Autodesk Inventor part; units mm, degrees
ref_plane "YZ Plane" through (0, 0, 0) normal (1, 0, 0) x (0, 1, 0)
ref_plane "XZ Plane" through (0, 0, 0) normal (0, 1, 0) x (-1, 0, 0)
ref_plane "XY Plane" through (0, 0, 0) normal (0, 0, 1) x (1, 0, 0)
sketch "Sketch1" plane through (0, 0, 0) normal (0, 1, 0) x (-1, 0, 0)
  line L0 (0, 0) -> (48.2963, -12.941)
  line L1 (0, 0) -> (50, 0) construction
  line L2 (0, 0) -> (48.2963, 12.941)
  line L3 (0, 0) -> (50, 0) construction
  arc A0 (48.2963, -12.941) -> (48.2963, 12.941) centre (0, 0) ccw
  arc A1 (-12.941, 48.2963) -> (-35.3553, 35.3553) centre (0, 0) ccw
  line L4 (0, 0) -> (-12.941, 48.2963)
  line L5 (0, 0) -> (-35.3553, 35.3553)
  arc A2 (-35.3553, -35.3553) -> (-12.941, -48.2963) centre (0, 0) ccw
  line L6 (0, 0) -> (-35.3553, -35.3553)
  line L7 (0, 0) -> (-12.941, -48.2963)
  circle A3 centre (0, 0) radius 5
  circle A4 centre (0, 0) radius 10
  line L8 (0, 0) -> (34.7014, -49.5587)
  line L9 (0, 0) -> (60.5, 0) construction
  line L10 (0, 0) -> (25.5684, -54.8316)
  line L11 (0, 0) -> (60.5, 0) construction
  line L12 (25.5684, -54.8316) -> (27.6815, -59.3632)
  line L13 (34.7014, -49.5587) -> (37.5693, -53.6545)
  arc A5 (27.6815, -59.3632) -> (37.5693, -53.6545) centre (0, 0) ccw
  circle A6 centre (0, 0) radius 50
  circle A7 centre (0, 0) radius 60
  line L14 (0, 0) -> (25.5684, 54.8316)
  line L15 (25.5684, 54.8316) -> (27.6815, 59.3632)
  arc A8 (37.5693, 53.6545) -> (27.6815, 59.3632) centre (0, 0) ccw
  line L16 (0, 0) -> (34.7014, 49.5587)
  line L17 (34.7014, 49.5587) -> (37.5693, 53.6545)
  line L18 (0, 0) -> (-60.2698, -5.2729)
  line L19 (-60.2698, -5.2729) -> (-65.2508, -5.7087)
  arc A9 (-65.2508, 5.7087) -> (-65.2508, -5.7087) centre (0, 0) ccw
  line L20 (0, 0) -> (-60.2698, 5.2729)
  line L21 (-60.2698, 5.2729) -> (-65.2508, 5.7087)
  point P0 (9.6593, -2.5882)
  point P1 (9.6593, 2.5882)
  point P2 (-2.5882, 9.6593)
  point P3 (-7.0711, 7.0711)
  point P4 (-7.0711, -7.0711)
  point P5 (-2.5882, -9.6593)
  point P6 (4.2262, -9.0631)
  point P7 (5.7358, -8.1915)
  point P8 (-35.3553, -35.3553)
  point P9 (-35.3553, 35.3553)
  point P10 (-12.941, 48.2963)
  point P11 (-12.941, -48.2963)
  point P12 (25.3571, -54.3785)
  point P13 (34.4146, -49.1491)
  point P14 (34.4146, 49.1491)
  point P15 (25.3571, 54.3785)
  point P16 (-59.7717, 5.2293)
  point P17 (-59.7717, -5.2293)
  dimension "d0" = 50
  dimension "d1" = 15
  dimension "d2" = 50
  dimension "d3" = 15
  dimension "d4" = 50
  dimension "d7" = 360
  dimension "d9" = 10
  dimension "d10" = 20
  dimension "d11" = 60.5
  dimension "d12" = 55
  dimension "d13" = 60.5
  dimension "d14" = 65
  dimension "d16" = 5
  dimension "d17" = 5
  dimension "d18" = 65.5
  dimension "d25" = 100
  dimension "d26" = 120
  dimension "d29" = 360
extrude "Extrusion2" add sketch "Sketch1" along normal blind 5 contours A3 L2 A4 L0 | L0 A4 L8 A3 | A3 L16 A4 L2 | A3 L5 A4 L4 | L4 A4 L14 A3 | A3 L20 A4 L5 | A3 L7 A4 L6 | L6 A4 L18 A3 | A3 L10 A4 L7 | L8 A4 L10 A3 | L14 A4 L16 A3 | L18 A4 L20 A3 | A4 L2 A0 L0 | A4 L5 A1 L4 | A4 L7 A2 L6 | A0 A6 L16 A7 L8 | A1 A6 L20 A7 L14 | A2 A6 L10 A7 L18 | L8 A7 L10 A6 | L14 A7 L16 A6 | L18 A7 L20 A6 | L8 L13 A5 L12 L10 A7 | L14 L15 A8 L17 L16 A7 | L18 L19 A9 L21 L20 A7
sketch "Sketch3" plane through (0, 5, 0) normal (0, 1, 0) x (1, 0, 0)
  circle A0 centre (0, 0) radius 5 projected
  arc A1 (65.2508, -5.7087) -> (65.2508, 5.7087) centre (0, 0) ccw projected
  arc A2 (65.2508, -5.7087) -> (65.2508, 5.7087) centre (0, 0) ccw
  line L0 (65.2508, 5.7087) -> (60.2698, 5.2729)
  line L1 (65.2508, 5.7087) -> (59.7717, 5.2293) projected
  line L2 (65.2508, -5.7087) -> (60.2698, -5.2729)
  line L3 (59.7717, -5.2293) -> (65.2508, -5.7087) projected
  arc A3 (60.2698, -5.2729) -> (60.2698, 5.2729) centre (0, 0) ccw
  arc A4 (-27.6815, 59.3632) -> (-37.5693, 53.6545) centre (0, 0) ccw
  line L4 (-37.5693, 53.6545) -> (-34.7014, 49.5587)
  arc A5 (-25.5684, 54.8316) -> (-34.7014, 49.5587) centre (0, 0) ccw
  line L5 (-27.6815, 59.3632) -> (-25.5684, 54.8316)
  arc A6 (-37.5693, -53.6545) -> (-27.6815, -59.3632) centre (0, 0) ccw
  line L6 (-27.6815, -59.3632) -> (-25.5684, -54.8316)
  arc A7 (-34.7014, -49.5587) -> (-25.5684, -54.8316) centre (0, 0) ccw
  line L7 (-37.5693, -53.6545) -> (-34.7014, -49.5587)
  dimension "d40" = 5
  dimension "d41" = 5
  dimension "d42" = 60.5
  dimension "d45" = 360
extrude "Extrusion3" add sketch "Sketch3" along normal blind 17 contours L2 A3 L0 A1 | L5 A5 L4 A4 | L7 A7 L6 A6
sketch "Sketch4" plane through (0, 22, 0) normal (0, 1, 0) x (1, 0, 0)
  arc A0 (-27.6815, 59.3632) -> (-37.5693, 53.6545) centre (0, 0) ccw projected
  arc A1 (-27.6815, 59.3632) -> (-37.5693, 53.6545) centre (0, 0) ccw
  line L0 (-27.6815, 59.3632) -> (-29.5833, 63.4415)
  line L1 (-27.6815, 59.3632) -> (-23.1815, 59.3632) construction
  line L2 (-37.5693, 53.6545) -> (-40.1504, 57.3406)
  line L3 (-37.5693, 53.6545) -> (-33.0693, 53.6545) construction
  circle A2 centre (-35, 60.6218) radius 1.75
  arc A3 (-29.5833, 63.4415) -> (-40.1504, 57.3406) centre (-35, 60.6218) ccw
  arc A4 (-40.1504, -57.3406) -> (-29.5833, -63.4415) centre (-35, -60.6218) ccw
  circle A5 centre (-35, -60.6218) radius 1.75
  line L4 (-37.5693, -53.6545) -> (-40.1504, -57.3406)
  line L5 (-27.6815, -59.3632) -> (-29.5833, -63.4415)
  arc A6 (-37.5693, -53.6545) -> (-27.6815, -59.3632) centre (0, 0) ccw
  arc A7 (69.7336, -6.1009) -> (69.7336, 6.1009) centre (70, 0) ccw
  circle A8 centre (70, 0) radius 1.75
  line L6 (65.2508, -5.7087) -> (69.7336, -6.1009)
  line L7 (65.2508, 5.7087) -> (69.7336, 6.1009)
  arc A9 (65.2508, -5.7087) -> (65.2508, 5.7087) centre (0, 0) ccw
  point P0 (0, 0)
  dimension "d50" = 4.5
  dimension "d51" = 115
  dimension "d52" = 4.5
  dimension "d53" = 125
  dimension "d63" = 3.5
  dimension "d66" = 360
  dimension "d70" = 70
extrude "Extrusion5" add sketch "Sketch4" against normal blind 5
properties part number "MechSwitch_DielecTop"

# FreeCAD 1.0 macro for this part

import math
import FreeCAD as App
import Part
import Sketcher

V = App.Vector
Q = App.Units.Quantity

doc = App.newDocument("Part")
params = doc.addObject("Spreadsheet::Sheet", "Params")
for row, (alias, value) in enumerate([
    ("sketch1_diameter", "10 mm"),
    ("sketch1_radius", "60 mm"),
    ("sketch1_radius2", "10 mm"),
    ("sketch1_radius3", "50 mm"),
    ("sketch1_radius4", "65.5 mm"),
    ("pad1_length", "5 mm"),
    ("sketch2_radius", "60.5 mm"),
    ("sketch2_length", "5 mm"),
    ("pad2_length", "17 mm"),
    ("sketch3_diameter", "3.5 mm"),
    ("sketch3_length", "4.5 mm"),
    ("sketch3_radius", "65.5 mm"),
    ("pad3_length", "5 mm"),
], start=1):
    params.set(f"A{row}", alias)
    params.set(f"B{row}", "=" + value)
    params.setAlias(f"B{row}", alias)

body = doc.addObject("PartDesign::Body", "Body")

# Sketch on XZ plane
sketch1 = body.newObject("Sketcher::SketchObject", "Sketch")
sketch1.AttachmentSupport = (doc.getObject("XZ_Plane"), [""])
sketch1.MapMode = "FlatFace"
sketch1.addGeometry([
    Part.LineSegment(V(-34.414603, 49.149111, 0), V(-34.7014, 49.5587, 0)),  # 0
    Part.LineSegment(V(-34.7014, 49.5587, 0), V(-37.5693, 53.6545, 0)),  # 1
    Part.ArcOfCircle(Part.Circle(V(-0.001465, 0.0023, 0), V(0, 0, 1), 65.497334), math.radians(114.999677), math.radians(125.000115)),  # 2
    Part.LineSegment(V(-27.6815, 59.3632, 0), V(-25.5684, 54.8316, 0)),  # 3
    Part.LineSegment(V(-25.5684, 54.8316, 0), V(-25.3571, 54.378465, 0)),  # 4
    Part.ArcOfCircle(Part.Circle(V(0, 0, 0), V(0, 0, 1), 60), math.radians(4.999977), math.radians(115.000004)),  # 5
    Part.LineSegment(V(59.771684, 5.229321, 0), V(60.2698, 5.2729, 0)),  # 6
    Part.LineSegment(V(60.2698, 5.2729, 0), V(65.2508, 5.7087, 0)),  # 7
    Part.ArcOfCircle(Part.Circle(V(0, 0, 0), V(0, 0, 1), 65.500047), math.radians(-4.999995), math.radians(4.999995)),  # 8
    Part.LineSegment(V(65.2508, -5.7087, 0), V(60.2698, -5.2729, 0)),  # 9
    Part.LineSegment(V(60.2698, -5.2729, 0), V(59.771684, -5.229321, 0)),  # 10
    Part.ArcOfCircle(Part.Circle(V(0, 0, 0), V(0, 0, 1), 60), math.radians(-115.000004), math.radians(-4.999977)),  # 11
    Part.LineSegment(V(-25.3571, -54.378465, 0), V(-25.5684, -54.8316, 0)),  # 12
    Part.LineSegment(V(-25.5684, -54.8316, 0), V(-27.6815, -59.3632, 0)),  # 13
    Part.ArcOfCircle(Part.Circle(V(0.001259, 0.002419, 0), V(0, 0, 1), 65.502762), math.radians(-124.999699), math.radians(-115.000092)),  # 14
    Part.LineSegment(V(-37.5693, -53.6545, 0), V(-34.7014, -49.5587, 0)),  # 15
    Part.LineSegment(V(-34.7014, -49.5587, 0), V(-34.414603, -49.149111, 0)),  # 16
    Part.ArcOfCircle(Part.Circle(V(0, 0, 0), V(0, 0, 1), 60), math.radians(125.000019), math.radians(234.999981)),  # 17
    Part.Circle(V(0, 0, 0), V(0, 0, 1), 5),  # 18
    Part.ArcOfCircle(Part.Circle(V(0, 0, 0), V(0, 0, 1), 10), math.radians(74.99995), math.radians(164.99995)),  # 19
    Part.LineSegment(V(2.588199, 9.659256, 0), V(12.941, 48.2963, 0)),  # 20
    Part.ArcOfCircle(Part.Circle(V(0, 0, 0), V(0, 0, 1), 50), math.radians(74.99995), math.radians(164.99995)),  # 21
    Part.LineSegment(V(-48.2963, 12.941, 0), V(-9.659256, 2.588199, 0)),  # 22
    Part.LineSegment(V(-9.659256, -2.588199, 0), V(-48.2963, -12.941, 0)),  # 23
    Part.ArcOfCircle(Part.Circle(V(0, 0, 0), V(0, 0, 1), 50), math.radians(-164.99995), math.radians(-74.99995)),  # 24
    Part.LineSegment(V(12.941, -48.2963, 0), V(2.588199, -9.659256, 0)),  # 25
    Part.ArcOfCircle(Part.Circle(V(0, 0, 0), V(0, 0, 1), 10), math.radians(-164.99995), math.radians(-74.99995)),  # 26
    Part.ArcOfCircle(Part.Circle(V(0, 0, 0), V(0, 0, 1), 50), math.radians(-45), math.radians(45)),  # 27
    Part.LineSegment(V(35.3553, 35.3553, 0), V(7.071068, 7.071068, 0)),  # 28
    Part.ArcOfCircle(Part.Circle(V(0, 0, 0), V(0, 0, 1), 10), math.radians(-45), math.radians(45)),  # 29
    Part.LineSegment(V(7.071068, -7.071068, 0), V(35.3553, -35.3553, 0)),  # 30
], False)
sketch1.addConstraint([
    Sketcher.Constraint("Coincident", 0, 2, 1, 1),
    Sketcher.Constraint("Coincident", 1, 2, 2, 2),
    Sketcher.Constraint("Coincident", 2, 1, 3, 1),
    Sketcher.Constraint("Coincident", 3, 2, 4, 1),
    Sketcher.Constraint("Coincident", 4, 2, 5, 2),
    Sketcher.Constraint("Coincident", 5, 1, 6, 1),
    Sketcher.Constraint("Coincident", 6, 2, 7, 1),
    Sketcher.Constraint("Coincident", 7, 2, 8, 2),
    Sketcher.Constraint("Coincident", 8, 1, 9, 1),
    Sketcher.Constraint("Coincident", 9, 2, 10, 1),
    Sketcher.Constraint("Coincident", 10, 2, 11, 2),
    Sketcher.Constraint("Coincident", 11, 1, 12, 1),
    Sketcher.Constraint("Coincident", 12, 2, 13, 1),
    Sketcher.Constraint("Coincident", 13, 2, 14, 2),
    Sketcher.Constraint("Coincident", 14, 1, 15, 1),
    Sketcher.Constraint("Coincident", 15, 2, 16, 1),
    Sketcher.Constraint("Coincident", 16, 2, 17, 2),
    Sketcher.Constraint("Coincident", 17, 1, 0, 1),
    Sketcher.Constraint("Coincident", 19, 1, 20, 1),
    Sketcher.Constraint("Coincident", 20, 2, 21, 1),
    Sketcher.Constraint("Coincident", 21, 2, 22, 1),
    Sketcher.Constraint("Coincident", 22, 2, 19, 2),
    Sketcher.Constraint("Coincident", 23, 2, 24, 1),
    Sketcher.Constraint("Coincident", 24, 2, 25, 1),
    Sketcher.Constraint("Coincident", 25, 2, 26, 2),
    Sketcher.Constraint("Coincident", 26, 1, 23, 1),
    Sketcher.Constraint("Coincident", 27, 2, 28, 1),
    Sketcher.Constraint("Coincident", 28, 2, 29, 2),
    Sketcher.Constraint("Coincident", 29, 1, 30, 1),
    Sketcher.Constraint("Coincident", 30, 2, 27, 1),
    Sketcher.Constraint("Coincident", 5, 3, -1, 1),
    Sketcher.Constraint("Coincident", 8, 3, -1, 1),
    Sketcher.Constraint("Coincident", 11, 3, -1, 1),
    Sketcher.Constraint("Coincident", 17, 3, -1, 1),
    Sketcher.Constraint("Coincident", 18, 3, -1, 1),
    Sketcher.Constraint("Coincident", 19, 3, -1, 1),
    Sketcher.Constraint("Coincident", 21, 3, -1, 1),
    Sketcher.Constraint("Coincident", 24, 3, -1, 1),
    Sketcher.Constraint("Coincident", 26, 3, -1, 1),
    Sketcher.Constraint("Coincident", 27, 3, -1, 1),
    Sketcher.Constraint("Coincident", 29, 3, -1, 1),
    Sketcher.Constraint("Equal", 5, 11),
    Sketcher.Constraint("Equal", 11, 17),
    Sketcher.Constraint("Equal", 21, 24),
    Sketcher.Constraint("Equal", 19, 26),
    Sketcher.Constraint("Equal", 24, 27),
    Sketcher.Constraint("Equal", 26, 29),
    Sketcher.Constraint("Symmetric", 2, 3, 14, 3, -2),
    Sketcher.Constraint("Symmetric", 6, 2, 9, 2, -1),
    Sketcher.Constraint("Symmetric", 3, 2, 12, 2, -1),
    Sketcher.Constraint("Symmetric", 2, 1, 13, 2, -1),
    Sketcher.Constraint("Symmetric", 1, 2, 14, 1, -1),
    Sketcher.Constraint("Symmetric", 0, 2, 15, 2, -1),
    Sketcher.Constraint("Parallel", 0, 1),
    Sketcher.Constraint("Parallel", 3, 4),
    Sketcher.Constraint("Parallel", 6, 7),
    Sketcher.Constraint("Parallel", 9, 10),
    Sketcher.Constraint("Parallel", 12, 13),
    Sketcher.Constraint("Parallel", 15, 16),
    Sketcher.Constraint("Perpendicular", 20, 22),
    Sketcher.Constraint("Perpendicular", 23, 25),
    Sketcher.Constraint("Perpendicular", 28, 30),
    Sketcher.Constraint("Vertical", 7, 2, 8, 1),
    Sketcher.Constraint("Vertical", 21, 2, 23, 2),
    Sketcher.Constraint("Vertical", 20, 2, 24, 2),
    Sketcher.Constraint("Vertical", 19, 1, 25, 2),
    Sketcher.Constraint("Vertical", 28, 2, 29, 1),
    Sketcher.Constraint("Vertical", 27, 2, 30, 2),
    Sketcher.Constraint("Equal", 1, 3),
    Sketcher.Constraint("Equal", 4, 6),
    Sketcher.Constraint("Equal", 3, 7),
    Sketcher.Constraint("Diameter", 18, Q("10 mm")),
    Sketcher.Constraint("Radius", 5, Q("60 mm")),
    Sketcher.Constraint("Radius", 19, Q("10 mm")),
    Sketcher.Constraint("Radius", 21, Q("50 mm")),
    Sketcher.Constraint("Radius", 8, Q("65.5 mm")),
    Sketcher.Constraint("Angle", 3, Q("-65.0002 deg")),
    Sketcher.Constraint("Angle", 6, Q("5 deg")),
    Sketcher.Constraint("Angle", 15, Q("55 deg")),
    Sketcher.Constraint("Angle", 22, Q("-15 deg")),
    Sketcher.Constraint("Distance", 1, Q("5 mm")),
    Sketcher.Constraint("Radius", 2, Q("65.4973 mm")),
    Sketcher.Constraint("DistanceX", 0, 2, 2, 3, Q("34.7 mm")),
    Sketcher.Constraint("DistanceX", 0, 2, 2, 1, Q("7.02 mm")),
    Sketcher.Constraint("DistanceY", -1, 1, 6, 2, Q("5.273 mm")),
    Sketcher.Constraint("DistanceX", -1, 1, 20, 2, Q("12.941 mm")),
    Sketcher.Constraint("DistanceY", -1, 1, 21, 2, Q("12.941 mm")),
    Sketcher.Constraint("DistanceX", -1, 1, 28, 2, Q("7.071 mm")),
])
sketch1.setExpression("Constraints[71]", "Params.sketch1_diameter")
sketch1.setExpression("Constraints[72]", "Params.sketch1_radius")
sketch1.setExpression("Constraints[73]", "Params.sketch1_radius2")
sketch1.setExpression("Constraints[74]", "Params.sketch1_radius3")
sketch1.setExpression("Constraints[75]", "Params.sketch1_radius4")
pad1 = body.newObject("PartDesign::Pad", "Pad")
pad1.Profile = sketch1
pad1.setExpression("Length", "Params.pad1_length")
pad1.Reversed = True

# Sketch on XZ plane
sketch2 = body.newObject("Sketcher::SketchObject", "Sketch001")
sketch2.AttachmentSupport = (doc.getObject("XZ_Plane"), [""])
sketch2.MapMode = "FlatFace"
sketch2.AttachmentOffset = App.Placement(V(0, 0, -5), App.Rotation())
sketch2.addGeometry([
    Part.LineSegment(V(60.2698, 5.2729, 0), V(65.2508, 5.7087, 0)),  # 0
    Part.ArcOfCircle(Part.Circle(V(0, 0, 0), V(0, 0, 1), 65.500047), math.radians(-4.999995), math.radians(4.999995)),  # 1
    Part.LineSegment(V(65.2508, -5.7087, 0), V(60.2698, -5.2729, 0)),  # 2
    Part.ArcOfCircle(Part.Circle(V(0, 0, 0), V(0, 0, 1), 60.500019), math.radians(-4.999977), math.radians(4.999977)),  # 3
    Part.LineSegment(V(-25.5684, -54.8316, 0), V(-27.6815, -59.3632, 0)),  # 4
    Part.ArcOfCircle(Part.Circle(V(0.001259, 0.002419, 0), V(0, 0, 1), 65.502762), math.radians(-124.999699), math.radians(-115.000092)),  # 5
    Part.LineSegment(V(-37.5693, -53.6545, 0), V(-34.7014, -49.5587, 0)),  # 6
    Part.ArcOfCircle(Part.Circle(V(0.002244, 0.004311, 0), V(0, 0, 1), 60.504834), math.radians(-124.999418), math.radians(-115.000205)),  # 7
    Part.LineSegment(V(-34.7014, 49.5587, 0), V(-37.5693, 53.6545, 0)),  # 8
    Part.ArcOfCircle(Part.Circle(V(-0.001465, 0.0023, 0), V(0, 0, 1), 65.497334), math.radians(114.999677), math.radians(125.000115)),  # 9
    Part.LineSegment(V(-27.6815, 59.3632, 0), V(-25.5684, 54.8316, 0)),  # 10
    Part.ArcOfCircle(Part.Circle(V(-0.002611, 0.004098, 0), V(0, 0, 1), 60.495162), math.radians(114.999404), math.radians(125.00022)),  # 11
], False)
sketch2.addConstraint([
    Sketcher.Constraint("Coincident", 0, 2, 1, 2),
    Sketcher.Constraint("Coincident", 1, 1, 2, 1),
    Sketcher.Constraint("Coincident", 2, 2, 3, 1),
    Sketcher.Constraint("Coincident", 3, 2, 0, 1),
    Sketcher.Constraint("Coincident", 4, 2, 5, 2),
    Sketcher.Constraint("Coincident", 5, 1, 6, 1),
    Sketcher.Constraint("Coincident", 6, 2, 7, 1),
    Sketcher.Constraint("Coincident", 7, 2, 4, 1),
    Sketcher.Constraint("Coincident", 8, 2, 9, 2),
    Sketcher.Constraint("Coincident", 9, 1, 10, 1),
    Sketcher.Constraint("Coincident", 10, 2, 11, 1),
    Sketcher.Constraint("Coincident", 11, 2, 8, 1),
    Sketcher.Constraint("Coincident", 1, 3, -1, 1),
    Sketcher.Constraint("Coincident", 3, 3, -1, 1),
    Sketcher.Constraint("Symmetric", 5, 3, 9, 3, -2),
    Sketcher.Constraint("Symmetric", 5, 1, 8, 2, -1),
    Sketcher.Constraint("Symmetric", 4, 2, 9, 1, -1),
    Sketcher.Constraint("Symmetric", 7, 2, 10, 2, -1),
    Sketcher.Constraint("Symmetric", 6, 2, 11, 2, -1),
    Sketcher.Constraint("Vertical", 0, 2, 1, 1),
    Sketcher.Constraint("Vertical", 2, 2, 3, 2),
    Sketcher.Constraint("Equal", 2, 4),
    Sketcher.Constraint("Equal", 4, 6),
    Sketcher.Constraint("Radius", 3, Q("60.5 mm")),
    Sketcher.Constraint("Angle", 0, Q("5.0002 deg")),
    Sketcher.Constraint("Distance", 0, Q("5 mm")),
    Sketcher.Constraint("Angle", 4, Q("-114.9998 deg")),
    Sketcher.Constraint("Angle", 6, Q("55 deg")),
    Sketcher.Constraint("Radius", 5, Q("65.5028 mm")),
    Sketcher.Constraint("Radius", 7, Q("60.5048 mm")),
    Sketcher.Constraint("Radius", 9, Q("65.4973 mm")),
    Sketcher.Constraint("Radius", 11, Q("60.4952 mm")),
    Sketcher.Constraint("DistanceX", 6, 2, 9, 3, Q("34.7 mm")),
    Sketcher.Constraint("DistanceX", 4, 2, 9, 3, Q("27.68 mm")),
    Sketcher.Constraint("DistanceY", 2, 2, -1, 1, Q("5.273 mm")),
])
sketch2.setExpression("Constraints[23]", "Params.sketch2_radius")
sketch2.setExpression("Constraints[25]", "Params.sketch2_length")
pad2 = body.newObject("PartDesign::Pad", "Pad001")
pad2.Profile = sketch2
pad2.setExpression("Length", "Params.pad2_length")
pad2.Reversed = True

# Sketch on XZ plane
sketch3 = body.newObject("Sketcher::SketchObject", "Sketch002")
sketch3.AttachmentSupport = (doc.getObject("XZ_Plane"), [""])
sketch3.MapMode = "FlatFace"
sketch3.AttachmentOffset = App.Placement(V(0, 0, -22), App.Rotation())
sketch3.addGeometry([
    Part.ArcOfCircle(Part.Circle(V(0.001259, 0.002419, 0), V(0, 0, 1), 65.502762), math.radians(-124.999699), math.radians(-115.000092)),  # 0
    Part.LineSegment(V(-27.6815, -59.3632, 0), V(-29.5833, -63.4415, 0)),  # 1
    Part.ArcOfCircle(Part.Circle(V(-35, -60.6218, 0), V(0, 0, 1), 6.106664), math.radians(147.499736), math.radians(332.500462)),  # 2
    Part.LineSegment(V(-40.1504, -57.3406, 0), V(-37.5693, -53.6545, 0)),  # 3
    Part.Circle(V(-35, -60.6218, 0), V(0, 0, 1), 1.75),  # 4
    Part.LineSegment(V(-37.5693, 53.6545, 0), V(-40.1504, 57.3406, 0)),  # 5
    Part.ArcOfCircle(Part.Circle(V(-35, 60.6218, 0), V(0, 0, 1), 6.106791), math.radians(27.499538), math.radians(212.500264)),  # 6
    Part.LineSegment(V(-29.5833, 63.4415, 0), V(-27.6815, 59.3632, 0)),  # 7
    Part.ArcOfCircle(Part.Circle(V(-0.001465, 0.0023, 0), V(0, 0, 1), 65.497334), math.radians(114.999677), math.radians(125.000115)),  # 8
    Part.Circle(V(-35, 60.6218, 0), V(0, 0, 1), 1.75),  # 9
    Part.LineSegment(V(65.2508, 5.7087, 0), V(69.7336, 6.1009, 0)),  # 10
    Part.ArcOfCircle(Part.Circle(V(70, 0, 0), V(0, 0, 1), 6.106713), math.radians(-92.500271), math.radians(92.500271)),  # 11
    Part.LineSegment(V(69.7336, -6.1009, 0), V(65.2508, -5.7087, 0)),  # 12
    Part.ArcOfCircle(Part.Circle(V(0, 0, 0), V(0, 0, 1), 65.500047), math.radians(-4.999995), math.radians(4.999995)),  # 13
    Part.Circle(V(70, 0, 0), V(0, 0, 1), 1.75),  # 14
], False)
sketch3.addConstraint([
    Sketcher.Constraint("Coincident", 0, 2, 1, 1),
    Sketcher.Constraint("Coincident", 1, 2, 2, 2),
    Sketcher.Constraint("Coincident", 2, 1, 3, 1),
    Sketcher.Constraint("Coincident", 3, 2, 0, 1),
    Sketcher.Constraint("Coincident", 5, 2, 6, 2),
    Sketcher.Constraint("Coincident", 6, 1, 7, 1),
    Sketcher.Constraint("Coincident", 7, 2, 8, 1),
    Sketcher.Constraint("Coincident", 8, 2, 5, 1),
    Sketcher.Constraint("Coincident", 10, 2, 11, 2),
    Sketcher.Constraint("Coincident", 11, 1, 12, 1),
    Sketcher.Constraint("Coincident", 12, 2, 13, 1),
    Sketcher.Constraint("Coincident", 13, 2, 10, 1),
    Sketcher.Constraint("Coincident", 13, 3, -1, 1),
    Sketcher.Constraint("Coincident", 4, 3, 2, 3),
    Sketcher.Constraint("Coincident", 9, 3, 6, 3),
    Sketcher.Constraint("Coincident", 14, 3, 11, 3),
    Sketcher.Constraint("Equal", 2, 6),
    Sketcher.Constraint("Equal", 4, 9),
    Sketcher.Constraint("Equal", 6, 11),
    Sketcher.Constraint("Equal", 9, 14),
    Sketcher.Constraint("Symmetric", 0, 3, 8, 3, -2),
    Sketcher.Constraint("Symmetric", 2, 3, 6, 3, -1),
    Sketcher.Constraint("Symmetric", 0, 2, 7, 2, -1),
    Sketcher.Constraint("Symmetric", 3, 2, 8, 2, -1),
    Sketcher.Constraint("Symmetric", 10, 2, 11, 1, -1),
    Sketcher.Constraint("Vertical", 2, 1, 5, 2),
    Sketcher.Constraint("Vertical", 1, 2, 6, 1),
    Sketcher.Constraint("Vertical", 12, 2, 13, 2),
    Sketcher.Constraint("Equal", 1, 3),
    Sketcher.Constraint("Equal", 7, 10),
    Sketcher.Constraint("Diameter", 4, Q("3.5 mm")),
    Sketcher.Constraint("DistanceX", -1, 1, 11, 3, Q("70 mm")),
    Sketcher.Constraint("Distance", 1, Q("4.5 mm")),
    Sketcher.Constraint("Radius", 13, Q("65.5 mm")),
    Sketcher.Constraint("Angle", 1, Q("-115.0007 deg")),
    Sketcher.Constraint("Angle", 3, Q("54.9993 deg")),
    Sketcher.Constraint("Angle", 10, Q("5 deg")),
    Sketcher.Constraint("DistanceX", 2, 3, -1, 1, Q("35 mm")),
    Sketcher.Constraint("Radius", 0, Q("65.5028 mm")),
    Sketcher.Constraint("Radius", 2, Q("6.1067 mm")),
    Sketcher.Constraint("Radius", 8, Q("65.4973 mm")),
    Sketcher.Constraint("DistanceX", 0, 2, 8, 3, Q("27.68 mm")),
])
sketch3.setExpression("Constraints[30]", "Params.sketch3_diameter")
sketch3.setExpression("Constraints[32]", "Params.sketch3_length")
sketch3.setExpression("Constraints[33]", "Params.sketch3_radius")
pad3 = body.newObject("PartDesign::Pad", "Pad002")
pad3.Profile = sketch3
pad3.setExpression("Length", "Params.pad3_length")

doc.recompute()
